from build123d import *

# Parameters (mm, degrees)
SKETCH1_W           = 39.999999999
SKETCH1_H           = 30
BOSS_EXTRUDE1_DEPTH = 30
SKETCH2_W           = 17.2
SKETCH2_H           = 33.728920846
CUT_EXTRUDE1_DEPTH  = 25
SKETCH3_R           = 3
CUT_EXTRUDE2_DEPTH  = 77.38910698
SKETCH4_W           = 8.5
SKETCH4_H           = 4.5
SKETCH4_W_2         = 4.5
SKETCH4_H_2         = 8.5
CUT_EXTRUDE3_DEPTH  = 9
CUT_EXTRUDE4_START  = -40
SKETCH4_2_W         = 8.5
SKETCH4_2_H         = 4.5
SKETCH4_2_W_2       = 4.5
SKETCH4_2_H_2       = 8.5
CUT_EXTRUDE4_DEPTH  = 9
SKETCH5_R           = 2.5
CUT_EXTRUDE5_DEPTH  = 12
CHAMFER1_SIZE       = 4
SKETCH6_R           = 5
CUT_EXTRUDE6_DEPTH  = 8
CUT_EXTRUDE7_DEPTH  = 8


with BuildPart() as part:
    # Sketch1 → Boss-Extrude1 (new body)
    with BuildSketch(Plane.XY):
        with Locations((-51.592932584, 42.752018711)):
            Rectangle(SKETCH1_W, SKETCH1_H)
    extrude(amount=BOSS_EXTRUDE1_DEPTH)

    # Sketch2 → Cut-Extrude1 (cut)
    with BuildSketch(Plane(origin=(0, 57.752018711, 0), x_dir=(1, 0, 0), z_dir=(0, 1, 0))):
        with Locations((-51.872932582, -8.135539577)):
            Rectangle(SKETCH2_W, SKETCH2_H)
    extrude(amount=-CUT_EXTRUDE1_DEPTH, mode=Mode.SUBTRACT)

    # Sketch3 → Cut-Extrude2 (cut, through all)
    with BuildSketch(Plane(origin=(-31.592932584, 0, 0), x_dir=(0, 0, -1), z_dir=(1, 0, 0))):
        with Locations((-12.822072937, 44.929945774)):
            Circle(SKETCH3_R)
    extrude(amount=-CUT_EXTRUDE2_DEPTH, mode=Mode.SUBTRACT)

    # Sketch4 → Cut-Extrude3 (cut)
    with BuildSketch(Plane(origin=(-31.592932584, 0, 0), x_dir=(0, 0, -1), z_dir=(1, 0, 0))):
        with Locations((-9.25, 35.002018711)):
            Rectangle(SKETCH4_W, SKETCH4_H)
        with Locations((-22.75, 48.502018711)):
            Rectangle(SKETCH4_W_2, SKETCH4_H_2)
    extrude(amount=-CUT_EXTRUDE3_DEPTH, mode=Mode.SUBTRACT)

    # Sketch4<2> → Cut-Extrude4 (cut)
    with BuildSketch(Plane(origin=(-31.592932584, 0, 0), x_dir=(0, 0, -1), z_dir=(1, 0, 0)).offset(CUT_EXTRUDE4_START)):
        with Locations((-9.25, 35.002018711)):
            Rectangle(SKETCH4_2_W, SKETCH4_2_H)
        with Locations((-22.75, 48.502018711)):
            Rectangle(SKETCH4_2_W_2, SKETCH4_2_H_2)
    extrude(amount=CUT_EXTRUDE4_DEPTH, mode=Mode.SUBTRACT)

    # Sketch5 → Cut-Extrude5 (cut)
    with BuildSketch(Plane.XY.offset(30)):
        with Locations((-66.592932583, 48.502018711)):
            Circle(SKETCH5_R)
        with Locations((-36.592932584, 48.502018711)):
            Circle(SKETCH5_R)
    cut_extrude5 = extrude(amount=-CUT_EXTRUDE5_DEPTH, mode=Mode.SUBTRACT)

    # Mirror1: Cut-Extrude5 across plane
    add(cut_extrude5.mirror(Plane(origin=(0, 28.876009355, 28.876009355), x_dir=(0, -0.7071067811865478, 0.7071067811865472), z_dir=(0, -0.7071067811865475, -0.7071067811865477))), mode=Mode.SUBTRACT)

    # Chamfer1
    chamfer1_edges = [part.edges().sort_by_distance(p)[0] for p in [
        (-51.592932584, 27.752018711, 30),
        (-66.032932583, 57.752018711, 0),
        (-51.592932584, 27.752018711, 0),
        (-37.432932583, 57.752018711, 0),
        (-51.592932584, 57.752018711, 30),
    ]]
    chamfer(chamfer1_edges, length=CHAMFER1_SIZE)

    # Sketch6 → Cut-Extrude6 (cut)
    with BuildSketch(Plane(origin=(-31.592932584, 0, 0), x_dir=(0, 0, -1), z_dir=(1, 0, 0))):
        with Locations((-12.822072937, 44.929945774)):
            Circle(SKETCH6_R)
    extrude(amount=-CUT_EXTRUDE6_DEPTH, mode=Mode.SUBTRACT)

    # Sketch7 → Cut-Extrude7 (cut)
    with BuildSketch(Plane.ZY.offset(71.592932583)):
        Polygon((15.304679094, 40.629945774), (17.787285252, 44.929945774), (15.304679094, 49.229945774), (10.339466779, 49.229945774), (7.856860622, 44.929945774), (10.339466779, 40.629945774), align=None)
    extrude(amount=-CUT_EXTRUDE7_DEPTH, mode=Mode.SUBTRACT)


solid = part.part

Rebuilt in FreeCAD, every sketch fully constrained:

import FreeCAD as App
import Part
import Sketcher
Q = App.Units.Quantity


def edges_at(feature, points):
    """Names of the edges that pass closest to the given points."""
    edges = feature.Shape.Edges
    near = lambda p: min(range(len(edges)), key=lambda i: edges[i].distToShape(Part.Vertex(*p))[0])
    return sorted({f"Edge{near(p) + 1}" for p in points})

doc = App.newDocument("Part")
body = doc.addObject("PartDesign::Body", "Body")

# Sketch on XY plane
sketch1 = doc.addObject("Sketcher::SketchObject", "Sketch")
body.addObject(sketch1)
sketch1.AttachmentSupport = (doc.XY_Plane, [""])
sketch1.MapMode = "FlatFace"
sketch1.addGeometry(Part.LineSegment(App.Vector(-72, 58, 0), App.Vector(-72, 28, 0)), False)
sketch1.addGeometry(Part.LineSegment(App.Vector(-72, 28, 0), App.Vector(-32, 28, 0)), False)
sketch1.addGeometry(Part.LineSegment(App.Vector(-32, 28, 0), App.Vector(-32, 58, 0)), False)
sketch1.addGeometry(Part.LineSegment(App.Vector(-32, 58, 0), App.Vector(-72, 58, 0)), False)
sketch1.addConstraint(Sketcher.Constraint("Coincident", 0, 2, 1, 1))
sketch1.addConstraint(Sketcher.Constraint("Coincident", 1, 2, 2, 1))
sketch1.addConstraint(Sketcher.Constraint("Coincident", 2, 2, 3, 1))
sketch1.addConstraint(Sketcher.Constraint("Coincident", 3, 2, 0, 1))
sketch1.addConstraint(Sketcher.Constraint("Vertical", 0))
sketch1.addConstraint(Sketcher.Constraint("Horizontal", 1))
sketch1.addConstraint(Sketcher.Constraint("Vertical", 2))
sketch1.addConstraint(Sketcher.Constraint("Horizontal", 3))
sketch1.addConstraint(Sketcher.Constraint("DistanceX", 1, 1, 1, 2, Q("40 mm")))
sketch1.addConstraint(Sketcher.Constraint("DistanceY", 0, 2, 0, 1, Q("30 mm")))
sketch1.addConstraint(Sketcher.Constraint("DistanceY", -1, 1, 0, 2, Q("27.752019 mm")))
sketch1.addConstraint(Sketcher.Constraint("DistanceX", 0, 2, -1, 1, Q("71.592933 mm")))
pad1 = doc.addObject("PartDesign::Pad", "Pad")
body.addObject(pad1)
pad1.Profile = sketch1
pad1.Length = 30

# Sketch on XZ plane
sketch2 = doc.addObject("Sketcher::SketchObject", "Sketch001")
body.addObject(sketch2)
sketch2.AttachmentSupport = (doc.XZ_Plane, [""])
sketch2.MapMode = "FlatFace"
sketch2.AttachmentOffset = App.Placement(App.Vector(0, 0, -57.752019), App.Rotation())
sketch2.addGeometry(Part.LineSegment(App.Vector(-60, -9, 0), App.Vector(-60, 25, 0)), False)
sketch2.addGeometry(Part.LineSegment(App.Vector(-60, 25, 0), App.Vector(-43, 25, 0)), False)
sketch2.addGeometry(Part.LineSegment(App.Vector(-43, 25, 0), App.Vector(-43, -9, 0)), False)
sketch2.addGeometry(Part.LineSegment(App.Vector(-43, -9, 0), App.Vector(-60, -9, 0)), False)
sketch2.addConstraint(Sketcher.Constraint("Coincident", 0, 2, 1, 1))
sketch2.addConstraint(Sketcher.Constraint("Coincident", 1, 2, 2, 1))
sketch2.addConstraint(Sketcher.Constraint("Coincident", 2, 2, 3, 1))
sketch2.addConstraint(Sketcher.Constraint("Coincident", 3, 2, 0, 1))
sketch2.addConstraint(Sketcher.Constraint("Vertical", 0))
sketch2.addConstraint(Sketcher.Constraint("Horizontal", 1))
sketch2.addConstraint(Sketcher.Constraint("Vertical", 2))
sketch2.addConstraint(Sketcher.Constraint("Horizontal", 3))
sketch2.addConstraint(Sketcher.Constraint("DistanceX", 1, 1, 1, 2, Q("17.2 mm")))
sketch2.addConstraint(Sketcher.Constraint("DistanceY", -1, 1, 0, 2, Q("25 mm")))
sketch2.addConstraint(Sketcher.Constraint("DistanceY", 0, 1, 0, 2, Q("33.728921 mm")))
sketch2.addConstraint(Sketcher.Constraint("DistanceX", 0, 2, -1, 1, Q("60.472933 mm")))
pocket1 = doc.addObject("PartDesign::Pocket", "Pocket")
body.addObject(pocket1)
pocket1.Profile = sketch2
pocket1.Length = 25
pocket1.Reversed = True

# Sketch on YZ plane
sketch3 = doc.addObject("Sketcher::SketchObject", "Sketch002")
body.addObject(sketch3)
sketch3.AttachmentSupport = (doc.YZ_Plane, [""])
sketch3.MapMode = "FlatFace"
sketch3.AttachmentOffset = App.Placement(App.Vector(0, 0, -31.592933), App.Rotation())
sketch3.addGeometry(Part.Circle(App.Vector(44.9, 12.8, 0), App.Vector(0, 0, 1), 3), False)
sketch3.addConstraint(Sketcher.Constraint("Diameter", 0, Q("6 mm")))
sketch3.addConstraint(Sketcher.Constraint("DistanceX", -1, 1, 0, 3, Q("44.929946 mm")))
sketch3.addConstraint(Sketcher.Constraint("DistanceY", -1, 1, 0, 3, Q("12.822073 mm")))
pocket2 = doc.addObject("PartDesign::Pocket", "Pocket001")
body.addObject(pocket2)
pocket2.Profile = sketch3
pocket2.Type = "ThroughAll"

# Sketch on YZ plane
sketch4 = doc.addObject("Sketcher::SketchObject", "Sketch003")
body.addObject(sketch4)
sketch4.AttachmentSupport = (doc.YZ_Plane, [""])
sketch4.MapMode = "FlatFace"
sketch4.AttachmentOffset = App.Placement(App.Vector(0, 0, -31.592933), App.Rotation())
sketch4.addGeometry(Part.LineSegment(App.Vector(37.3, 13.5, 0), App.Vector(32.8, 13.5, 0)), False)
sketch4.addGeometry(Part.LineSegment(App.Vector(32.8, 13.5, 0), App.Vector(32.8, 5, 0)), False)
sketch4.addGeometry(Part.LineSegment(App.Vector(32.8, 5, 0), App.Vector(37.3, 5, 0)), False)
sketch4.addGeometry(Part.LineSegment(App.Vector(37.3, 5, 0), App.Vector(37.3, 13.5, 0)), False)
sketch4.addGeometry(Part.LineSegment(App.Vector(52.8, 25, 0), App.Vector(44.3, 25, 0)), False)
sketch4.addGeometry(Part.LineSegment(App.Vector(44.3, 25, 0), App.Vector(44.3, 20.5, 0)), False)
sketch4.addGeometry(Part.LineSegment(App.Vector(44.3, 20.5, 0), App.Vector(52.8, 20.5, 0)), False)
sketch4.addGeometry(Part.LineSegment(App.Vector(52.8, 20.5, 0), App.Vector(52.8, 25, 0)), False)
sketch4.addConstraint(Sketcher.Constraint("Coincident", 0, 2, 1, 1))
sketch4.addConstraint(Sketcher.Constraint("Coincident", 1, 2, 2, 1))
sketch4.addConstraint(Sketcher.Constraint("Coincident", 2, 2, 3, 1))
sketch4.addConstraint(Sketcher.Constraint("Coincident", 3, 2, 0, 1))
sketch4.addConstraint(Sketcher.Constraint("Coincident", 4, 2, 5, 1))
sketch4.addConstraint(Sketcher.Constraint("Coincident", 5, 2, 6, 1))
sketch4.addConstraint(Sketcher.Constraint("Coincident", 6, 2, 7, 1))
sketch4.addConstraint(Sketcher.Constraint("Coincident", 7, 2, 4, 1))
sketch4.addConstraint(Sketcher.Constraint("Horizontal", 0))
sketch4.addConstraint(Sketcher.Constraint("Vertical", 1))
sketch4.addConstraint(Sketcher.Constraint("Horizontal", 2))
sketch4.addConstraint(Sketcher.Constraint("Vertical", 3))
sketch4.addConstraint(Sketcher.Constraint("Horizontal", 4))
sketch4.addConstraint(Sketcher.Constraint("Vertical", 5))
sketch4.addConstraint(Sketcher.Constraint("Horizontal", 6))
sketch4.addConstraint(Sketcher.Constraint("Vertical", 7))
sketch4.addConstraint(Sketcher.Constraint("Equal", 6, 1))
sketch4.addConstraint(Sketcher.Constraint("Equal", 2, 5))
sketch4.addConstraint(Sketcher.Constraint("DistanceX", 0, 2, 0, 1, Q("4.5 mm")))
sketch4.addConstraint(Sketcher.Constraint("DistanceX", 4, 2, 4, 1, Q("8.5 mm")))
sketch4.addConstraint(Sketcher.Constraint("DistanceY", -1, 1, 1, 2, Q("5 mm")))
sketch4.addConstraint(Sketcher.Constraint("DistanceY", -1, 1, 4, 2, Q("25 mm")))
sketch4.addConstraint(Sketcher.Constraint("DistanceX", 3, 2, 4, 2, Q("7 mm")))
sketch4.addConstraint(Sketcher.Constraint("DistanceX", -1, 1, 0, 2, Q("32.752019 mm")))
pocket3 = doc.addObject("PartDesign::Pocket", "Pocket002")
body.addObject(pocket3)
pocket3.Profile = sketch4
pocket3.Length = 9

# Sketch on YZ plane
sketch5 = doc.addObject("Sketcher::SketchObject", "Sketch004")
body.addObject(sketch5)
sketch5.AttachmentSupport = (doc.YZ_Plane, [""])
sketch5.MapMode = "FlatFace"
sketch5.AttachmentOffset = App.Placement(App.Vector(0, 0, -71.592933), App.Rotation())
sketch5.addGeometry(Part.LineSegment(App.Vector(37.3, 13.5, 0), App.Vector(32.8, 13.5, 0)), False)
sketch5.addGeometry(Part.LineSegment(App.Vector(32.8, 13.5, 0), App.Vector(32.8, 5, 0)), False)
sketch5.addGeometry(Part.LineSegment(App.Vector(32.8, 5, 0), App.Vector(37.3, 5, 0)), False)
sketch5.addGeometry(Part.LineSegment(App.Vector(37.3, 5, 0), App.Vector(37.3, 13.5, 0)), False)
sketch5.addGeometry(Part.LineSegment(App.Vector(52.8, 25, 0), App.Vector(44.3, 25, 0)), False)
sketch5.addGeometry(Part.LineSegment(App.Vector(44.3, 25, 0), App.Vector(44.3, 20.5, 0)), False)
sketch5.addGeometry(Part.LineSegment(App.Vector(44.3, 20.5, 0), App.Vector(52.8, 20.5, 0)), False)
sketch5.addGeometry(Part.LineSegment(App.Vector(52.8, 20.5, 0), App.Vector(52.8, 25, 0)), False)
sketch5.addConstraint(Sketcher.Constraint("Coincident", 0, 2, 1, 1))
sketch5.addConstraint(Sketcher.Constraint("Coincident", 1, 2, 2, 1))
sketch5.addConstraint(Sketcher.Constraint("Coincident", 2, 2, 3, 1))
sketch5.addConstraint(Sketcher.Constraint("Coincident", 3, 2, 0, 1))
sketch5.addConstraint(Sketcher.Constraint("Coincident", 4, 2, 5, 1))
sketch5.addConstraint(Sketcher.Constraint("Coincident", 5, 2, 6, 1))
sketch5.addConstraint(Sketcher.Constraint("Coincident", 6, 2, 7, 1))
sketch5.addConstraint(Sketcher.Constraint("Coincident", 7, 2, 4, 1))
sketch5.addConstraint(Sketcher.Constraint("Horizontal", 0))
sketch5.addConstraint(Sketcher.Constraint("Vertical", 1))
sketch5.addConstraint(Sketcher.Constraint("Horizontal", 2))
sketch5.addConstraint(Sketcher.Constraint("Vertical", 3))
sketch5.addConstraint(Sketcher.Constraint("Horizontal", 4))
sketch5.addConstraint(Sketcher.Constraint("Vertical", 5))
sketch5.addConstraint(Sketcher.Constraint("Horizontal", 6))
sketch5.addConstraint(Sketcher.Constraint("Vertical", 7))
sketch5.addConstraint(Sketcher.Constraint("Equal", 6, 1))
sketch5.addConstraint(Sketcher.Constraint("Equal", 2, 5))
sketch5.addConstraint(Sketcher.Constraint("DistanceX", 0, 2, 0, 1, Q("4.5 mm")))
sketch5.addConstraint(Sketcher.Constraint("DistanceX", 4, 2, 4, 1, Q("8.5 mm")))
sketch5.addConstraint(Sketcher.Constraint("DistanceY", -1, 1, 1, 2, Q("5 mm")))
sketch5.addConstraint(Sketcher.Constraint("DistanceY", -1, 1, 4, 2, Q("25 mm")))
sketch5.addConstraint(Sketcher.Constraint("DistanceX", 3, 2, 4, 2, Q("7 mm")))
sketch5.addConstraint(Sketcher.Constraint("DistanceX", -1, 1, 0, 2, Q("32.752019 mm")))
pocket4 = doc.addObject("PartDesign::Pocket", "Pocket003")
body.addObject(pocket4)
pocket4.Profile = sketch5
pocket4.Length = 9
pocket4.Reversed = True

# Sketch on XY plane
sketch6 = doc.addObject("Sketcher::SketchObject", "Sketch005")
body.addObject(sketch6)
sketch6.AttachmentSupport = (doc.XY_Plane, [""])
sketch6.MapMode = "FlatFace"
sketch6.AttachmentOffset = App.Placement(App.Vector(0, 0, 30), App.Rotation())
sketch6.addGeometry(Part.Circle(App.Vector(-66.6, 48.5, 0), App.Vector(0, 0, 1), 2.5), False)
sketch6.addGeometry(Part.Circle(App.Vector(-36.6, 48.5, 0), App.Vector(0, 0, 1), 2.5), False)
sketch6.addConstraint(Sketcher.Constraint("Equal", 0, 1))
sketch6.addConstraint(Sketcher.Constraint("Horizontal", 0, 3, 1, 3))
sketch6.addConstraint(Sketcher.Constraint("Diameter", 0, Q("5 mm")))
sketch6.addConstraint(Sketcher.Constraint("DistanceX", 0, 3, 1, 3, Q("30 mm")))
sketch6.addConstraint(Sketcher.Constraint("DistanceY", -1, 1, 0, 3, Q("48.502019 mm")))
sketch6.addConstraint(Sketcher.Constraint("DistanceX", 0, 3, -1, 1, Q("66.592933 mm")))
pocket5 = doc.addObject("PartDesign::Pocket", "Pocket004")
body.addObject(pocket5)
pocket5.Profile = sketch6
pocket5.Length = 12
doc.recompute()

datumplane = doc.addObject("PartDesign::Plane", "DatumPlane")
body.addObject(datumplane)
datumplane.Placement = App.Placement(App.Vector(0, 28.876009, 28.876009), App.Rotation(App.Vector(0, -0.707106781, 0.707106781), App.Vector(-1, 0, 0), App.Vector(0, -0.707106781, -0.707106781), "ZXY"))
mirrored = doc.addObject("PartDesign::Mirrored", "Mirrored")
body.addObject(mirrored)
mirrored.Originals = [pocket5]
mirrored.MirrorPlane = (datumplane, [""])
body.Tip = mirrored
doc.recompute()

chamfer = doc.addObject("PartDesign::Chamfer", "Chamfer")
body.addObject(chamfer)
chamfer.Base = (mirrored, edges_at(mirrored, [
    (-51.593, 27.752, 30),
    (-66.033, 57.752, 0),
    (-51.593, 27.752, 0),
    (-37.433, 57.752, 0),
    (-51.593, 57.752, 30),
]))
chamfer.Size = 4

# Sketch on YZ plane
sketch7 = doc.addObject("Sketcher::SketchObject", "Sketch006")
body.addObject(sketch7)
sketch7.AttachmentSupport = (doc.YZ_Plane, [""])
sketch7.MapMode = "FlatFace"
sketch7.AttachmentOffset = App.Placement(App.Vector(0, 0, -31.592933), App.Rotation())
sketch7.addGeometry(Part.Circle(App.Vector(45, 13, 0), App.Vector(0, 0, 1), 5), False)
sketch7.addConstraint(Sketcher.Constraint("Diameter", 0, Q("10 mm")))
sketch7.addConstraint(Sketcher.Constraint("DistanceX", -1, 1, 0, 3, Q("44.929946 mm")))
sketch7.addConstraint(Sketcher.Constraint("DistanceY", -1, 1, 0, 3, Q("12.822073 mm")))
pocket6 = doc.addObject("PartDesign::Pocket", "Pocket005")
body.addObject(pocket6)
pocket6.Profile = sketch7
pocket6.Length = 8

# Sketch on YZ plane
sketch8 = doc.addObject("Sketcher::SketchObject", "Sketch007")
body.addObject(sketch8)
sketch8.AttachmentSupport = (doc.YZ_Plane, [""])
sketch8.MapMode = "FlatFace"
sketch8.AttachmentOffset = App.Placement(App.Vector(0, 0, -71.592933), App.Rotation())
sketch8.addGeometry(Part.LineSegment(App.Vector(40.6, 15.3, 0), App.Vector(44.9, 17.8, 0)), False)
sketch8.addGeometry(Part.LineSegment(App.Vector(44.9, 17.8, 0), App.Vector(49.2, 15.3, 0)), False)
sketch8.addGeometry(Part.LineSegment(App.Vector(49.2, 15.3, 0), App.Vector(49.2, 10.3, 0)), False)
sketch8.addGeometry(Part.LineSegment(App.Vector(49.2, 10.3, 0), App.Vector(44.9, 7.9, 0)), False)
sketch8.addGeometry(Part.LineSegment(App.Vector(44.9, 7.9, 0), App.Vector(40.6, 10.3, 0)), False)
sketch8.addGeometry(Part.LineSegment(App.Vector(40.6, 10.3, 0), App.Vector(40.6, 15.3, 0)), False)
sketch8.addConstraint(Sketcher.Constraint("Coincident", 0, 2, 1, 1))
sketch8.addConstraint(Sketcher.Constraint("Coincident", 1, 2, 2, 1))
sketch8.addConstraint(Sketcher.Constraint("Coincident", 2, 2, 3, 1))
sketch8.addConstraint(Sketcher.Constraint("Coincident", 3, 2, 4, 1))
sketch8.addConstraint(Sketcher.Constraint("Coincident", 4, 2, 5, 1))
sketch8.addConstraint(Sketcher.Constraint("Coincident", 5, 2, 0, 1))
sketch8.addConstraint(Sketcher.Constraint("Vertical", 2))
sketch8.addConstraint(Sketcher.Constraint("Vertical", 5))
sketch8.addConstraint(Sketcher.Constraint("Parallel", 0, 3))
sketch8.addConstraint(Sketcher.Constraint("Parallel", 1, 4))
sketch8.addConstraint(Sketcher.Constraint("Horizontal", 2, 2, 4, 2))
sketch8.addConstraint(Sketcher.Constraint("Horizontal", 1, 2, 5, 2))
sketch8.addConstraint(Sketcher.Constraint("Vertical", 0, 2, 3, 2))
sketch8.addConstraint(Sketcher.Constraint("Angle", 0, Q("30 deg")))
sketch8.addConstraint(Sketcher.Constraint("DistanceX", 0, 2, 1, 2, Q("4.3 mm")))
sketch8.addConstraint(Sketcher.Constraint("DistanceY", 2, 2, 2, 1, Q("4.965212 mm")))
sketch8.addConstraint(Sketcher.Constraint("DistanceY", -1, 1, 1, 2, Q("15.304679 mm")))
sketch8.addConstraint(Sketcher.Constraint("DistanceX", -1, 1, 0, 2, Q("44.929946 mm")))
pocket7 = doc.addObject("PartDesign::Pocket", "Pocket006")
body.addObject(pocket7)
pocket7.Profile = sketch8
pocket7.Length = 8
pocket7.Reversed = True

doc.recompute()
